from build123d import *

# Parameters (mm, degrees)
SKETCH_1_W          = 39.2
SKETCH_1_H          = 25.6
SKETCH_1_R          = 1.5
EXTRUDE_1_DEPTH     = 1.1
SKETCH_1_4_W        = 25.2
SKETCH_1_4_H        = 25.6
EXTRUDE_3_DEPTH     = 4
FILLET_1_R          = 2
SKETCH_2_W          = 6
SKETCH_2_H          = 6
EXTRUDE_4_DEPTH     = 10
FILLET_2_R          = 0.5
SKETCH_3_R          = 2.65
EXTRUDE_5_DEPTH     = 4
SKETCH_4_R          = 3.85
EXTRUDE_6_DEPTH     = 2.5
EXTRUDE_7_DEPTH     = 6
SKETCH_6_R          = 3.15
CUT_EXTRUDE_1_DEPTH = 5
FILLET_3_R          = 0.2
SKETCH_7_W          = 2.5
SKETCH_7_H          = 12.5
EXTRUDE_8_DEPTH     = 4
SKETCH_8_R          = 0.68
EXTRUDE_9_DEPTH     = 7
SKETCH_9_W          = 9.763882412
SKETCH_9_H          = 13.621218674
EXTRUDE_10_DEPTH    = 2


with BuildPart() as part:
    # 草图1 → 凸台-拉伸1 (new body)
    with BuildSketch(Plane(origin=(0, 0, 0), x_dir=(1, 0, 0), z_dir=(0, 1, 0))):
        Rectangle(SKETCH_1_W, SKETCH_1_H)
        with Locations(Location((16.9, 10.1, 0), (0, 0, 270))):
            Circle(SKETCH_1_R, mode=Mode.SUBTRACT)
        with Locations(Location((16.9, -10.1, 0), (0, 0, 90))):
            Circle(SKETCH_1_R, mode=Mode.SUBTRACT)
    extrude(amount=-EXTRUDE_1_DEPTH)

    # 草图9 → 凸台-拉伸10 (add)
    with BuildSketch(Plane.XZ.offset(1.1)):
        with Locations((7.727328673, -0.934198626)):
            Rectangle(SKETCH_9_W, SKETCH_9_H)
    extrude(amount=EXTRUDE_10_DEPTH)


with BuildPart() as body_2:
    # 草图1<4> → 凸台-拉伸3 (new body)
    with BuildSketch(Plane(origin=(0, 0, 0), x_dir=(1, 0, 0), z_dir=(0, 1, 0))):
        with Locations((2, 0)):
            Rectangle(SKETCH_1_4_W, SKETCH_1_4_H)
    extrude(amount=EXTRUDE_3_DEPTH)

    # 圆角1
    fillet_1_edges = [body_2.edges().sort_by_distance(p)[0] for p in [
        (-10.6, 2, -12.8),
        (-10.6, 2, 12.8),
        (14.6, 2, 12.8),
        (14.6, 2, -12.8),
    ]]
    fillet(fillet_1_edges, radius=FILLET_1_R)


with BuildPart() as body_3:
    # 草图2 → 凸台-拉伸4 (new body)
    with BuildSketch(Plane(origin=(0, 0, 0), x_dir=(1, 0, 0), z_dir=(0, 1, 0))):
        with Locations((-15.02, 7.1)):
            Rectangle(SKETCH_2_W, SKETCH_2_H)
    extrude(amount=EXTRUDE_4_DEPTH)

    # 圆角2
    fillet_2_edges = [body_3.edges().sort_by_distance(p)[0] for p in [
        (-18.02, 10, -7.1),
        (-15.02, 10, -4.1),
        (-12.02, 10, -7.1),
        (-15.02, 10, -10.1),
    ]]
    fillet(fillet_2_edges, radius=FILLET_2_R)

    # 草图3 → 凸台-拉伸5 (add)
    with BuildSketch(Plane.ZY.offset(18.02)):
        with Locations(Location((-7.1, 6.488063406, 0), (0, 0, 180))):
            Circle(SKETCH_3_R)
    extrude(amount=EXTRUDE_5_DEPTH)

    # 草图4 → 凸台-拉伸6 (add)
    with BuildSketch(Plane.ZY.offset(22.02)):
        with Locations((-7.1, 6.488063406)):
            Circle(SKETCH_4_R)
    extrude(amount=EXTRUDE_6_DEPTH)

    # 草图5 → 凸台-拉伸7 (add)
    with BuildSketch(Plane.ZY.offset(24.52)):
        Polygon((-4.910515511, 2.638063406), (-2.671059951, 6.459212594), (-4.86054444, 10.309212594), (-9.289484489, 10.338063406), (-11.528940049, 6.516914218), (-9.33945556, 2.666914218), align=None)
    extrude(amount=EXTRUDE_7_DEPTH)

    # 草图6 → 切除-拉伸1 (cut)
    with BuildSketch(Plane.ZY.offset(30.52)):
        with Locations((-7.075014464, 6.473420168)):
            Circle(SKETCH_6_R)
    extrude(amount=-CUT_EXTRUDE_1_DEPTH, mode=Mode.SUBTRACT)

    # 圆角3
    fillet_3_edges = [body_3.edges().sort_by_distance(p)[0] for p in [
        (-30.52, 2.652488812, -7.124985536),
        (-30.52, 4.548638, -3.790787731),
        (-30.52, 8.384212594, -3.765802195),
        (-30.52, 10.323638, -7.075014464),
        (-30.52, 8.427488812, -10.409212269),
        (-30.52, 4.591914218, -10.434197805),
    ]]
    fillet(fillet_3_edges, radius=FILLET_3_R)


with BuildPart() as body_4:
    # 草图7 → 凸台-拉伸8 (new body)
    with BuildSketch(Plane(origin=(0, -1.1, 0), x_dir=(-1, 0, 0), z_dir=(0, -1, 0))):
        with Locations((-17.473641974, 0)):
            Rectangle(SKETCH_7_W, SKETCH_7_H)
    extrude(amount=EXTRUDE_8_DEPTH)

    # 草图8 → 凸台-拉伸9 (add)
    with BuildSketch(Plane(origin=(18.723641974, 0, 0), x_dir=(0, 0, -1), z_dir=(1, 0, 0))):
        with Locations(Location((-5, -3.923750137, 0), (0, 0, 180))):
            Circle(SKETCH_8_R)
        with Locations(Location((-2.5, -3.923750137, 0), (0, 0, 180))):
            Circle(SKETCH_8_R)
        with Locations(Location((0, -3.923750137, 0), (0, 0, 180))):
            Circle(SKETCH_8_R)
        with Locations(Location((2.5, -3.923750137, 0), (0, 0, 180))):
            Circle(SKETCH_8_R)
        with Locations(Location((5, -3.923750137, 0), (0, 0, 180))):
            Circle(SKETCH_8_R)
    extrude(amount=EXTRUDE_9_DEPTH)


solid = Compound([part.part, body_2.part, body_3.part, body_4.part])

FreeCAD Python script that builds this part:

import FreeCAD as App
import Part
import Sketcher

V = App.Vector
Q = App.Units.Quantity


def edges_at(feature, points):
    """Names of the edges that pass closest to the given points."""
    edges = feature.Shape.Edges
    near = lambda p: min(range(len(edges)), key=lambda i: edges[i].distToShape(Part.Vertex(*p))[0])
    return sorted({f"Edge{near(p) + 1}" for p in points})

doc = App.newDocument("Part")
body = doc.addObject("PartDesign::Body", "Body")

sketch1 = doc.addObject("Sketcher::SketchObject", "Sketch")
body.addObject(sketch1)
sketch1.AttachmentSupport = (doc.XZ_Plane, [""])
sketch1.MapMode = "FlatFace"
sketch1.addGeometry([
    Part.LineSegment(V(-19.6, -12.8, 0), V(-19.6, 12.8, 0)),
    Part.LineSegment(V(-19.6, 12.8, 0), V(19.6, 12.8, 0)),
    Part.LineSegment(V(19.6, 12.8, 0), V(19.6, -12.8, 0)),
    Part.LineSegment(V(19.6, -12.8, 0), V(-19.6, -12.8, 0)),
    Part.Circle(V(16.9, 10.1, 0), V(0, 0, 1), 1.5),
    Part.Circle(V(16.9, -10.1, 0), V(0, 0, 1), 1.5),
], False)
sketch1.addConstraint([
    Sketcher.Constraint("Coincident", 0, 2, 1, 1),
    Sketcher.Constraint("Coincident", 1, 2, 2, 1),
    Sketcher.Constraint("Coincident", 2, 2, 3, 1),
    Sketcher.Constraint("Coincident", 3, 2, 0, 1),
    Sketcher.Constraint("Vertical", 0),
    Sketcher.Constraint("Horizontal", 1),
    Sketcher.Constraint("Vertical", 2),
    Sketcher.Constraint("Horizontal", 3),
    Sketcher.Constraint("Equal", 4, 5),
    Sketcher.Constraint("Symmetric", 0, 2, 2, 2, -1, 1),
    Sketcher.Constraint("Symmetric", 4, 3, 5, 3, -1),
    Sketcher.Constraint("Diameter", 4, Q("3 mm")),
    Sketcher.Constraint("DistanceX", 1, 1, 1, 2, Q("39.2 mm")),
    Sketcher.Constraint("DistanceY", 0, 1, 0, 2, Q("25.6 mm")),
    Sketcher.Constraint("DistanceX", -1, 1, 4, 3, Q("16.9 mm")),
    Sketcher.Constraint("DistanceY", -1, 1, 4, 3, Q("10.1 mm")),
])
pad1 = doc.addObject("PartDesign::Pad", "Pad")
body.addObject(pad1)
pad1.Profile = sketch1
pad1.Length = 1.1

sketch2 = doc.addObject("Sketcher::SketchObject", "Sketch001")
body.addObject(sketch2)
sketch2.AttachmentSupport = (doc.XZ_Plane, [""])
sketch2.MapMode = "FlatFace"
sketch2.AttachmentOffset = App.Placement(V(0, 0, 1.1), App.Rotation())
sketch2.addGeometry([
    Part.LineSegment(V(3, 6, 0), V(3, -8, 0)),
    Part.LineSegment(V(3, -8, 0), V(13, -8, 0)),
    Part.LineSegment(V(13, -8, 0), V(13, 6, 0)),
    Part.LineSegment(V(13, 6, 0), V(3, 6, 0)),
], False)
sketch2.addConstraint([
    Sketcher.Constraint("Coincident", 0, 2, 1, 1),
    Sketcher.Constraint("Coincident", 1, 2, 2, 1),
    Sketcher.Constraint("Coincident", 2, 2, 3, 1),
    Sketcher.Constraint("Coincident", 3, 2, 0, 1),
    Sketcher.Constraint("Vertical", 0),
    Sketcher.Constraint("Horizontal", 1),
    Sketcher.Constraint("Vertical", 2),
    Sketcher.Constraint("Horizontal", 3),
    Sketcher.Constraint("DistanceY", 0, 2, 0, 1, Q("13.621219 mm")),
    Sketcher.Constraint("DistanceX", 1, 1, 1, 2, Q("9.763882 mm")),
    Sketcher.Constraint("DistanceX", -1, 1, 1, 2, Q("12.60927 mm")),
    Sketcher.Constraint("DistanceY", -1, 1, 2, 2, Q("5.876411 mm")),
])
pad2 = doc.addObject("PartDesign::Pad", "Pad001")
body.addObject(pad2)
pad2.Profile = sketch2
pad2.Length = 2
body2 = doc.addObject("PartDesign::Body", "Body001")

sketch3 = doc.addObject("Sketcher::SketchObject", "Sketch002")
body2.addObject(sketch3)
sketch3.AttachmentSupport = (doc.getObject("XZ_Plane001"), [""])
sketch3.MapMode = "FlatFace"
sketch3.addGeometry([
    Part.LineSegment(V(-11, -13, 0), V(-11, 13, 0)),
    Part.LineSegment(V(-11, 13, 0), V(15, 13, 0)),
    Part.LineSegment(V(15, 13, 0), V(15, -13, 0)),
    Part.LineSegment(V(15, -13, 0), V(-11, -13, 0)),
], False)
sketch3.addConstraint([
    Sketcher.Constraint("Coincident", 0, 2, 1, 1),
    Sketcher.Constraint("Coincident", 1, 2, 2, 1),
    Sketcher.Constraint("Coincident", 2, 2, 3, 1),
    Sketcher.Constraint("Coincident", 3, 2, 0, 1),
    Sketcher.Constraint("Vertical", 0),
    Sketcher.Constraint("Horizontal", 1),
    Sketcher.Constraint("Vertical", 2),
    Sketcher.Constraint("Horizontal", 3),
    Sketcher.Constraint("DistanceX", 1, 1, 1, 2, Q("25.2 mm")),
    Sketcher.Constraint("DistanceY", 0, 1, 0, 2, Q("25.6 mm")),
    Sketcher.Constraint("DistanceX", 0, 2, -1, 1, Q("10.6 mm")),
    Sketcher.Constraint("DistanceY", -1, 1, 0, 2, Q("12.8 mm")),
])
pad3 = doc.addObject("PartDesign::Pad", "Pad002")
body2.addObject(pad3)
pad3.Profile = sketch3
pad3.Length = 4
pad3.Reversed = True
doc.recompute()

fillet = doc.addObject("PartDesign::Fillet", "Fillet")
body2.addObject(fillet)
fillet.Base = (pad3, edges_at(pad3, [
    (-10.6, 2, -12.8),
    (-10.6, 2, 12.8),
    (14.6, 2, 12.8),
    (14.6, 2, -12.8),
]))
fillet.Radius = 2
body3 = doc.addObject("PartDesign::Body", "Body002")

sketch4 = doc.addObject("Sketcher::SketchObject", "Sketch003")
body3.addObject(sketch4)
sketch4.AttachmentSupport = (doc.getObject("XZ_Plane002"), [""])
sketch4.MapMode = "FlatFace"
sketch4.addGeometry([
    Part.LineSegment(V(-18, -10, 0), V(-18, -4, 0)),
    Part.LineSegment(V(-18, -4, 0), V(-12, -4, 0)),
    Part.LineSegment(V(-12, -4, 0), V(-12, -10, 0)),
    Part.LineSegment(V(-12, -10, 0), V(-18, -10, 0)),
], False)
sketch4.addConstraint([
    Sketcher.Constraint("Coincident", 0, 2, 1, 1),
    Sketcher.Constraint("Coincident", 1, 2, 2, 1),
    Sketcher.Constraint("Coincident", 2, 2, 3, 1),
    Sketcher.Constraint("Coincident", 3, 2, 0, 1),
    Sketcher.Constraint("Vertical", 0),
    Sketcher.Constraint("Horizontal", 1),
    Sketcher.Constraint("Vertical", 2),
    Sketcher.Constraint("Horizontal", 3),
    Sketcher.Constraint("Equal", 3, 0),
    Sketcher.Constraint("DistanceX", 1, 1, 1, 2, Q("6 mm")),
    Sketcher.Constraint("DistanceY", 0, 2, -1, 1, Q("4.1 mm")),
    Sketcher.Constraint("DistanceX", 0, 2, -1, 1, Q("18.02 mm")),
])
pad4 = doc.addObject("PartDesign::Pad", "Pad003")
body3.addObject(pad4)
pad4.Profile = sketch4
pad4.Length = 10
pad4.Reversed = True
doc.recompute()

fillet2 = doc.addObject("PartDesign::Fillet", "Fillet001")
body3.addObject(fillet2)
fillet2.Base = (pad4, edges_at(pad4, [
    (-18.02, 10, -7.1),
    (-15.02, 10, -4.1),
    (-12.02, 10, -7.1),
    (-15.02, 10, -10.1),
]))
fillet2.Radius = 0.5

sketch5 = doc.addObject("Sketcher::SketchObject", "Sketch004")
body3.addObject(sketch5)
sketch5.AttachmentSupport = (doc.getObject("YZ_Plane002"), [""])
sketch5.MapMode = "FlatFace"
sketch5.AttachmentOffset = App.Placement(V(0, 0, -18.02), App.Rotation())
sketch5.addGeometry(Part.Circle(V(6.5, -7.1, 0), V(0, 0, 1), 2.6), False)
sketch5.addConstraint([
    Sketcher.Constraint("Diameter", 0, Q("5.3 mm")),
    Sketcher.Constraint("DistanceY", 0, 3, -1, 1, Q("7.1 mm")),
    Sketcher.Constraint("DistanceX", -1, 1, 0, 3, Q("6.488063 mm")),
])
pad5 = doc.addObject("PartDesign::Pad", "Pad004")
body3.addObject(pad5)
pad5.Profile = sketch5
pad5.Length = 4
pad5.Reversed = True

sketch6 = doc.addObject("Sketcher::SketchObject", "Sketch005")
body3.addObject(sketch6)
sketch6.AttachmentSupport = (doc.getObject("YZ_Plane002"), [""])
sketch6.MapMode = "FlatFace"
sketch6.AttachmentOffset = App.Placement(V(0, 0, -22.02), App.Rotation())
sketch6.addGeometry(Part.Circle(V(6.5, -7.1, 0), V(0, 0, 1), 3.9), False)
sketch6.addConstraint([
    Sketcher.Constraint("Diameter", 0, Q("7.7 mm")),
    Sketcher.Constraint("DistanceY", 0, 3, -1, 1, Q("7.1 mm")),
    Sketcher.Constraint("DistanceX", -1, 1, 0, 3, Q("6.488063 mm")),
])
pad6 = doc.addObject("PartDesign::Pad", "Pad005")
body3.addObject(pad6)
pad6.Profile = sketch6
pad6.Length = 2.5
pad6.Reversed = True

sketch7 = doc.addObject("Sketcher::SketchObject", "Sketch006")
body3.addObject(sketch7)
sketch7.AttachmentSupport = (doc.getObject("YZ_Plane002"), [""])
sketch7.MapMode = "FlatFace"
sketch7.AttachmentOffset = App.Placement(V(0, 0, -24.52), App.Rotation())
sketch7.addGeometry([
    Part.LineSegment(V(2.6, -4.9, 0), V(6.5, -2.7, 0)),
    Part.LineSegment(V(6.5, -2.7, 0), V(10.3, -4.9, 0)),
    Part.LineSegment(V(10.3, -4.9, 0), V(10.3, -9.3, 0)),
    Part.LineSegment(V(10.3, -9.3, 0), V(6.5, -11.5, 0)),
    Part.LineSegment(V(6.5, -11.5, 0), V(2.7, -9.3, 0)),
    Part.LineSegment(V(2.7, -9.3, 0), V(2.6, -4.9, 0)),
], False)
sketch7.addConstraint([
    Sketcher.Constraint("Coincident", 0, 2, 1, 1),
    Sketcher.Constraint("Coincident", 1, 2, 2, 1),
    Sketcher.Constraint("Coincident", 2, 2, 3, 1),
    Sketcher.Constraint("Coincident", 3, 2, 4, 1),
    Sketcher.Constraint("Coincident", 4, 2, 5, 1),
    Sketcher.Constraint("Coincident", 5, 2, 0, 1),
    Sketcher.Constraint("Parallel", 0, 3),
    Sketcher.Constraint("Parallel", 1, 4),
    Sketcher.Constraint("Parallel", 2, 5),
    Sketcher.Constraint("Equal", 0, 1),
    Sketcher.Constraint("Equal", 1, 2),
    Sketcher.Constraint("Equal", 2, 3),
    Sketcher.Constraint("DistanceX", 5, 2, 2, 2, Q("7.7 mm")),
    Sketcher.Constraint("DistanceX", 0, 2, 1, 2, Q("3.85 mm")),
    Sketcher.Constraint("DistanceX", 3, 2, 1, 2, Q("3.792298 mm")),
    Sketcher.Constraint("DistanceY", 0, 2, -1, 1, Q("2.67106 mm")),
    Sketcher.Constraint("DistanceY", 3, 2, -1, 1, Q("11.52894 mm")),
    Sketcher.Constraint("DistanceX", -1, 1, 0, 2, Q("6.459213 mm")),
])
pad7 = doc.addObject("PartDesign::Pad", "Pad006")
body3.addObject(pad7)
pad7.Profile = sketch7
pad7.Length = 6
pad7.Reversed = True

sketch8 = doc.addObject("Sketcher::SketchObject", "Sketch007")
body3.addObject(sketch8)
sketch8.AttachmentSupport = (doc.getObject("YZ_Plane002"), [""])
sketch8.MapMode = "FlatFace"
sketch8.AttachmentOffset = App.Placement(V(0, 0, -30.52), App.Rotation())
sketch8.addGeometry(Part.Circle(V(6.5, -7.1, 0), V(0, 0, 1), 3.1), False)
sketch8.addConstraint([
    Sketcher.Constraint("Diameter", 0, Q("6.3 mm")),
    Sketcher.Constraint("DistanceX", -1, 1, 0, 3, Q("6.47342 mm")),
    Sketcher.Constraint("DistanceY", 0, 3, -1, 1, Q("7.075014 mm")),
])
pocket1 = doc.addObject("PartDesign::Pocket", "Pocket")
body3.addObject(pocket1)
pocket1.Profile = sketch8
pocket1.Length = 5
pocket1.Reversed = True
doc.recompute()

fillet3 = doc.addObject("PartDesign::Fillet", "Fillet002")
body3.addObject(fillet3)
fillet3.Base = (pocket1, edges_at(pocket1, [
    (-30.52, 2.652, -7.125),
    (-30.52, 4.549, -3.791),
    (-30.52, 8.384, -3.766),
    (-30.52, 10.324, -7.075),
    (-30.52, 8.427, -10.409),
    (-30.52, 4.592, -10.434),
]))
fillet3.Radius = 0.2
body4 = doc.addObject("PartDesign::Body", "Body003")

sketch9 = doc.addObject("Sketcher::SketchObject", "Sketch008")
body4.addObject(sketch9)
sketch9.AttachmentSupport = (doc.getObject("XZ_Plane003"), [""])
sketch9.MapMode = "FlatFace"
sketch9.AttachmentOffset = App.Placement(V(0, 0, 1.1), App.Rotation())
sketch9.addGeometry([
    Part.LineSegment(V(18.7, -6.2, 0), V(18.7, 6.2, 0)),
    Part.LineSegment(V(18.7, 6.2, 0), V(16.2, 6.2, 0)),
    Part.LineSegment(V(16.2, 6.2, 0), V(16.2, -6.2, 0)),
    Part.LineSegment(V(16.2, -6.2, 0), V(18.7, -6.2, 0)),
], False)
sketch9.addConstraint([
    Sketcher.Constraint("Coincident", 0, 2, 1, 1),
    Sketcher.Constraint("Coincident", 1, 2, 2, 1),
    Sketcher.Constraint("Coincident", 2, 2, 3, 1),
    Sketcher.Constraint("Coincident", 3, 2, 0, 1),
    Sketcher.Constraint("Vertical", 0),
    Sketcher.Constraint("Horizontal", 1),
    Sketcher.Constraint("Vertical", 2),
    Sketcher.Constraint("Horizontal", 3),
    Sketcher.Constraint("DistanceX", 1, 2, 1, 1, Q("2.5 mm")),
    Sketcher.Constraint("DistanceY", 0, 1, 0, 2, Q("12.5 mm")),
    Sketcher.Constraint("DistanceY", -1, 1, 0, 2, Q("6.25 mm")),
    Sketcher.Constraint("DistanceX", -1, 1, 0, 2, Q("18.723642 mm")),
])
pad8 = doc.addObject("PartDesign::Pad", "Pad007")
body4.addObject(pad8)
pad8.Profile = sketch9
pad8.Length = 4

sketch10 = doc.addObject("Sketcher::SketchObject", "Sketch009")
body4.addObject(sketch10)
sketch10.AttachmentSupport = (doc.getObject("YZ_Plane003"), [""])
sketch10.MapMode = "FlatFace"
sketch10.AttachmentOffset = App.Placement(V(0, 0, 18.723642), App.Rotation())
sketch10.addGeometry([
    Part.Circle(V(-3.9, 5, 0), V(0, 0, 1), 0.7),
    Part.Circle(V(-3.9, 2.5, 0), V(0, 0, 1), 0.7),
    Part.Circle(V(-3.9, 0, 0), V(0, 0, 1), 0.7),
    Part.Circle(V(-3.9, -2.5, 0), V(0, 0, 1), 0.7),
    Part.Circle(V(-3.9, -5, 0), V(0, 0, 1), 0.7),
], False)
sketch10.addConstraint([
    Sketcher.Constraint("Equal", 0, 1),
    Sketcher.Constraint("Equal", 1, 2),
    Sketcher.Constraint("Equal", 2, 3),
    Sketcher.Constraint("Equal", 3, 4),
    Sketcher.Constraint("Symmetric", 1, 3, 3, 3, -1),
    Sketcher.Constraint("Symmetric", 0, 3, 4, 3, -1),
    Sketcher.Constraint("PointOnObject", 2, 3, -1),
    Sketcher.Constraint("Vertical", 0, 3, 1, 3),
    Sketcher.Constraint("Vertical", 1, 3, 2, 3),
    Sketcher.Constraint("Diameter", 0, Q("1.36 mm")),
    Sketcher.Constraint("DistanceY", -1, 1, 0, 3, Q("5 mm")),
    Sketcher.Constraint("DistanceY", 3, 3, 1, 3, Q("5 mm")),
    Sketcher.Constraint("DistanceX", 0, 3, -1, 1, Q("3.92375 mm")),
])
pad9 = doc.addObject("PartDesign::Pad", "Pad008")
body4.addObject(pad9)
pad9.Profile = sketch10
pad9.Length = 7

doc.recompute()
